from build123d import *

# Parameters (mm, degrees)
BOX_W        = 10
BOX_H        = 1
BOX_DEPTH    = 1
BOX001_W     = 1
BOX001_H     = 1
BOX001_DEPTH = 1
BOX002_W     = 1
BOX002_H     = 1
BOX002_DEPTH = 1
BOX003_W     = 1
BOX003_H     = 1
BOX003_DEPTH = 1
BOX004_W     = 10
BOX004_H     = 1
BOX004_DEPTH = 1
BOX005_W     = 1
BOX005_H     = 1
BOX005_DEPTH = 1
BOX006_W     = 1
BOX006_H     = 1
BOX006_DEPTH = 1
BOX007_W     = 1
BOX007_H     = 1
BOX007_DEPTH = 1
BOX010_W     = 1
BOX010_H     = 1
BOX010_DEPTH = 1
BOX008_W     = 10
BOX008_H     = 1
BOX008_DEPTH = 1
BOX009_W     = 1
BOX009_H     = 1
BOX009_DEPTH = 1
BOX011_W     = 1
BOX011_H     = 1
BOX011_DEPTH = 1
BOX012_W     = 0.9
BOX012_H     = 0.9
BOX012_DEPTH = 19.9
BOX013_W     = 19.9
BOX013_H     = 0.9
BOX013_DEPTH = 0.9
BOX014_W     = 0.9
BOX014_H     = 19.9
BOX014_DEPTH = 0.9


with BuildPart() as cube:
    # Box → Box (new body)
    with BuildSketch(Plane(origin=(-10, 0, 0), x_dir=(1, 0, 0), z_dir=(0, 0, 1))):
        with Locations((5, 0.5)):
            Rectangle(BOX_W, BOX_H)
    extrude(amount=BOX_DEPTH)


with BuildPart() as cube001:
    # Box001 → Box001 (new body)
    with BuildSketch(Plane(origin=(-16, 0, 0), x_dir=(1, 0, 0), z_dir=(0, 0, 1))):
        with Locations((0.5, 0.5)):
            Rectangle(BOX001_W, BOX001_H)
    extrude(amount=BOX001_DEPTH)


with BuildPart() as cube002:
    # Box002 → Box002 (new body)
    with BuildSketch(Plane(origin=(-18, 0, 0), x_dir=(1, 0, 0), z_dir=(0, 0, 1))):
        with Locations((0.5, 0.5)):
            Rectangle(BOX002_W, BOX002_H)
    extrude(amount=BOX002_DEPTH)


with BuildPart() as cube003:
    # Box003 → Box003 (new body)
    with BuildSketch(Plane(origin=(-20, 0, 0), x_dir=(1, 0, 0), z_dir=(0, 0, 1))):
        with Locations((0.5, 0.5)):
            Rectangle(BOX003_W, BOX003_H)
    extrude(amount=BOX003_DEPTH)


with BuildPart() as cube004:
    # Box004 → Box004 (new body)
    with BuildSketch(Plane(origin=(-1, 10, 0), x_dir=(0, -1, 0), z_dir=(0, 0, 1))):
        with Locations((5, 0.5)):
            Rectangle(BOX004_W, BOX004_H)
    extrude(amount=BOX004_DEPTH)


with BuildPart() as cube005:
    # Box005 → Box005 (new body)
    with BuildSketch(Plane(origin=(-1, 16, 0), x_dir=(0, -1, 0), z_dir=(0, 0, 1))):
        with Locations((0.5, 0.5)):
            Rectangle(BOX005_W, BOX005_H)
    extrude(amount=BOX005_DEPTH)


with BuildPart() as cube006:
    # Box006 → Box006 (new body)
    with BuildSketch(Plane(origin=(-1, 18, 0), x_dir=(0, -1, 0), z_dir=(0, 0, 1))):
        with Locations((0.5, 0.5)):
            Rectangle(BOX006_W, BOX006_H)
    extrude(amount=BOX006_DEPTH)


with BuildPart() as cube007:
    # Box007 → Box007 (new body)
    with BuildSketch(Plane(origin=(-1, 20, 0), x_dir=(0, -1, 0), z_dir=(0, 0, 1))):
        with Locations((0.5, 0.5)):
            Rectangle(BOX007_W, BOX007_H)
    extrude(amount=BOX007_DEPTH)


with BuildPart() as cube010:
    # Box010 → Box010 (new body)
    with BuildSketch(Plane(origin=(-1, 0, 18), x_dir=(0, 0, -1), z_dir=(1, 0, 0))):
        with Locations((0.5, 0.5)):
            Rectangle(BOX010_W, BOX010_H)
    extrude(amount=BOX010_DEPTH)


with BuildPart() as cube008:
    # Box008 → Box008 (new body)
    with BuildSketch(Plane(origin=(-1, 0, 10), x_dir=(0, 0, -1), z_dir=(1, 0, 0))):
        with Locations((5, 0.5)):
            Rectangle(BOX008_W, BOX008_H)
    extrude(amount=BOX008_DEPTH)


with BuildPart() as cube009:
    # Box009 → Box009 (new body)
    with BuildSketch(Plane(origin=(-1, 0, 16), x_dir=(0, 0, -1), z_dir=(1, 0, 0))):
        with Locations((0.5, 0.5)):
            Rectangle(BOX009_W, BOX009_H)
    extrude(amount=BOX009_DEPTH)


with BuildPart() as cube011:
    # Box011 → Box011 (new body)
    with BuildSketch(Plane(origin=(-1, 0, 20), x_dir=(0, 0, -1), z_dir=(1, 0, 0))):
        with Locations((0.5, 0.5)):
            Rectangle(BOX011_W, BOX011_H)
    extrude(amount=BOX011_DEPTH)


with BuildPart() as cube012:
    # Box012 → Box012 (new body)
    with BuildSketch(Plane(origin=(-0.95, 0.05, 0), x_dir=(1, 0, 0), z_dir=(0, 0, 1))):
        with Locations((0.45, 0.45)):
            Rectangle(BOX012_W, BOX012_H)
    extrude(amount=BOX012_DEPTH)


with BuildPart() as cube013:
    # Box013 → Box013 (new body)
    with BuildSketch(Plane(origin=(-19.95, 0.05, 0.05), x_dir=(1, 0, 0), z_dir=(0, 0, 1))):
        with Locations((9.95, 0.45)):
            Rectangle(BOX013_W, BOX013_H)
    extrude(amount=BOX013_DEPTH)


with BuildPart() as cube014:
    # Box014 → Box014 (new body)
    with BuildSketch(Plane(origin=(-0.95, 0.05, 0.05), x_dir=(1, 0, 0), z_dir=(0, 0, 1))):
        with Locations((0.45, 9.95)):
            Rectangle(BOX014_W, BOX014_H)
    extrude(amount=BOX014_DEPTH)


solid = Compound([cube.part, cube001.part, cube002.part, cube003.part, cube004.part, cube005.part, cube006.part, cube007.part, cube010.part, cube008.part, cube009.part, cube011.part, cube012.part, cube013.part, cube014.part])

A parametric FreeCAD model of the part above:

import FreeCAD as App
import Part
import Sketcher

doc = App.newDocument("Part")
body = doc.addObject("PartDesign::Body", "Body")

# Sketch on XY plane
sketch1 = doc.addObject("Sketcher::SketchObject", "Sketch")
body.addObject(sketch1)
sketch1.AttachmentSupport = (doc.XY_Plane, [""])
sketch1.MapMode = "FlatFace"
sketch1.addGeometry([
    Part.LineSegment(App.Vector(-10, 1, 0), App.Vector(-10, 0, 0)),
    Part.LineSegment(App.Vector(-10, 0, 0), App.Vector(0, 0, 0)),
    Part.LineSegment(App.Vector(0, 0, 0), App.Vector(0, 1, 0)),
    Part.LineSegment(App.Vector(0, 1, 0), App.Vector(-10, 1, 0)),
], False)
sketch1.addConstraint([
    Sketcher.Constraint("Coincident", 0, 2, 1, 1),
    Sketcher.Constraint("Coincident", 1, 2, 2, 1),
    Sketcher.Constraint("Coincident", 2, 2, 3, 1),
    Sketcher.Constraint("Coincident", 3, 2, 0, 1),
    Sketcher.Constraint("Vertical", 0),
    Sketcher.Constraint("Horizontal", 1),
    Sketcher.Constraint("Vertical", 2),
    Sketcher.Constraint("Horizontal", 3),
    Sketcher.Constraint("Coincident", 1, 2, -1, 1),
    Sketcher.Constraint("DistanceX", 1, 1, 1, 2, 10.0),
    Sketcher.Constraint("DistanceY", 0, 2, 0, 1, 1.0),
])
pad1 = doc.addObject("PartDesign::Pad", "Pad")
body.addObject(pad1)
pad1.Profile = sketch1
pad1.Length = 1
body2 = doc.addObject("PartDesign::Body", "Body001")

# Sketch on XY plane
sketch2 = doc.addObject("Sketcher::SketchObject", "Sketch001")
body2.addObject(sketch2)
sketch2.AttachmentSupport = (doc.getObject("XY_Plane001"), [""])
sketch2.MapMode = "FlatFace"
sketch2.addGeometry([
    Part.LineSegment(App.Vector(-16, 1, 0), App.Vector(-16, 0, 0)),
    Part.LineSegment(App.Vector(-16, 0, 0), App.Vector(-15, 0, 0)),
    Part.LineSegment(App.Vector(-15, 0, 0), App.Vector(-15, 1, 0)),
    Part.LineSegment(App.Vector(-15, 1, 0), App.Vector(-16, 1, 0)),
], False)
sketch2.addConstraint([
    Sketcher.Constraint("Coincident", 0, 2, 1, 1),
    Sketcher.Constraint("Coincident", 1, 2, 2, 1),
    Sketcher.Constraint("Coincident", 2, 2, 3, 1),
    Sketcher.Constraint("Coincident", 3, 2, 0, 1),
    Sketcher.Constraint("Vertical", 0),
    Sketcher.Constraint("Horizontal", 1),
    Sketcher.Constraint("Vertical", 2),
    Sketcher.Constraint("Horizontal", 3),
    Sketcher.Constraint("PointOnObject", 0, 2, -1),
    Sketcher.Constraint("Equal", 3, 0),
    Sketcher.Constraint("DistanceX", 1, 1, 1, 2, 1.0),
    Sketcher.Constraint("DistanceX", 0, 2, -1, 1, 16.0),
])
pad2 = doc.addObject("PartDesign::Pad", "Pad001")
body2.addObject(pad2)
pad2.Profile = sketch2
pad2.Length = 1
body3 = doc.addObject("PartDesign::Body", "Body002")

# Sketch on XY plane
sketch3 = doc.addObject("Sketcher::SketchObject", "Sketch002")
body3.addObject(sketch3)
sketch3.AttachmentSupport = (doc.getObject("XY_Plane002"), [""])
sketch3.MapMode = "FlatFace"
sketch3.addGeometry([
    Part.LineSegment(App.Vector(-18, 1, 0), App.Vector(-18, 0, 0)),
    Part.LineSegment(App.Vector(-18, 0, 0), App.Vector(-17, 0, 0)),
    Part.LineSegment(App.Vector(-17, 0, 0), App.Vector(-17, 1, 0)),
    Part.LineSegment(App.Vector(-17, 1, 0), App.Vector(-18, 1, 0)),
], False)
sketch3.addConstraint([
    Sketcher.Constraint("Coincident", 0, 2, 1, 1),
    Sketcher.Constraint("Coincident", 1, 2, 2, 1),
    Sketcher.Constraint("Coincident", 2, 2, 3, 1),
    Sketcher.Constraint("Coincident", 3, 2, 0, 1),
    Sketcher.Constraint("Vertical", 0),
    Sketcher.Constraint("Horizontal", 1),
    Sketcher.Constraint("Vertical", 2),
    Sketcher.Constraint("Horizontal", 3),
    Sketcher.Constraint("PointOnObject", 0, 2, -1),
    Sketcher.Constraint("Equal", 3, 0),
    Sketcher.Constraint("DistanceX", 1, 1, 1, 2, 1.0),
    Sketcher.Constraint("DistanceX", 0, 2, -1, 1, 18.0),
])
pad3 = doc.addObject("PartDesign::Pad", "Pad002")
body3.addObject(pad3)
pad3.Profile = sketch3
pad3.Length = 1
body4 = doc.addObject("PartDesign::Body", "Body003")

# Sketch on XY plane
sketch4 = doc.addObject("Sketcher::SketchObject", "Sketch003")
body4.addObject(sketch4)
sketch4.AttachmentSupport = (doc.getObject("XY_Plane003"), [""])
sketch4.MapMode = "FlatFace"
sketch4.addGeometry([
    Part.LineSegment(App.Vector(-20, 1, 0), App.Vector(-20, 0, 0)),
    Part.LineSegment(App.Vector(-20, 0, 0), App.Vector(-19, 0, 0)),
    Part.LineSegment(App.Vector(-19, 0, 0), App.Vector(-19, 1, 0)),
    Part.LineSegment(App.Vector(-19, 1, 0), App.Vector(-20, 1, 0)),
], False)
sketch4.addConstraint([
    Sketcher.Constraint("Coincident", 0, 2, 1, 1),
    Sketcher.Constraint("Coincident", 1, 2, 2, 1),
    Sketcher.Constraint("Coincident", 2, 2, 3, 1),
    Sketcher.Constraint("Coincident", 3, 2, 0, 1),
    Sketcher.Constraint("Vertical", 0),
    Sketcher.Constraint("Horizontal", 1),
    Sketcher.Constraint("Vertical", 2),
    Sketcher.Constraint("Horizontal", 3),
    Sketcher.Constraint("PointOnObject", 0, 2, -1),
    Sketcher.Constraint("Equal", 3, 0),
    Sketcher.Constraint("DistanceX", 1, 1, 1, 2, 1.0),
    Sketcher.Constraint("DistanceX", 0, 2, -1, 1, 20.0),
])
pad4 = doc.addObject("PartDesign::Pad", "Pad003")
body4.addObject(pad4)
pad4.Profile = sketch4
pad4.Length = 1
body5 = doc.addObject("PartDesign::Body", "Body004")

# Sketch on XY plane
sketch5 = doc.addObject("Sketcher::SketchObject", "Sketch004")
body5.addObject(sketch5)
sketch5.AttachmentSupport = (doc.getObject("XY_Plane004"), [""])
sketch5.MapMode = "FlatFace"
sketch5.addGeometry([
    Part.LineSegment(App.Vector(0, 10, 0), App.Vector(-1, 10, 0)),
    Part.LineSegment(App.Vector(-1, 10, 0), App.Vector(-1, 0, 0)),
    Part.LineSegment(App.Vector(-1, 0, 0), App.Vector(0, 0, 0)),
    Part.LineSegment(App.Vector(0, 0, 0), App.Vector(0, 10, 0)),
], False)
sketch5.addConstraint([
    Sketcher.Constraint("Coincident", 0, 2, 1, 1),
    Sketcher.Constraint("Coincident", 1, 2, 2, 1),
    Sketcher.Constraint("Coincident", 2, 2, 3, 1),
    Sketcher.Constraint("Coincident", 3, 2, 0, 1),
    Sketcher.Constraint("Horizontal", 0),
    Sketcher.Constraint("Vertical", 1),
    Sketcher.Constraint("Horizontal", 2),
    Sketcher.Constraint("Vertical", 3),
    Sketcher.Constraint("Coincident", 2, 2, -1, 1),
    Sketcher.Constraint("DistanceX", 0, 2, 0, 1, 1.0),
    Sketcher.Constraint("DistanceY", 1, 2, 1, 1, 10.0),
])
pad5 = doc.addObject("PartDesign::Pad", "Pad004")
body5.addObject(pad5)
pad5.Profile = sketch5
pad5.Length = 1
body6 = doc.addObject("PartDesign::Body", "Body005")

# Sketch on XY plane
sketch6 = doc.addObject("Sketcher::SketchObject", "Sketch005")
body6.addObject(sketch6)
sketch6.AttachmentSupport = (doc.getObject("XY_Plane005"), [""])
sketch6.MapMode = "FlatFace"
sketch6.addGeometry([
    Part.LineSegment(App.Vector(0, 16, 0), App.Vector(-1, 16, 0)),
    Part.LineSegment(App.Vector(-1, 16, 0), App.Vector(-1, 15, 0)),
    Part.LineSegment(App.Vector(-1, 15, 0), App.Vector(0, 15, 0)),
    Part.LineSegment(App.Vector(0, 15, 0), App.Vector(0, 16, 0)),
], False)
sketch6.addConstraint([
    Sketcher.Constraint("Coincident", 0, 2, 1, 1),
    Sketcher.Constraint("Coincident", 1, 2, 2, 1),
    Sketcher.Constraint("Coincident", 2, 2, 3, 1),
    Sketcher.Constraint("Coincident", 3, 2, 0, 1),
    Sketcher.Constraint("Horizontal", 0),
    Sketcher.Constraint("Vertical", 1),
    Sketcher.Constraint("Horizontal", 2),
    Sketcher.Constraint("Vertical", 3),
    Sketcher.Constraint("PointOnObject", 2, 2, -2),
    Sketcher.Constraint("Equal", 2, 1),
    Sketcher.Constraint("DistanceX", 0, 2, 0, 1, 1.0),
    Sketcher.Constraint("DistanceY", -1, 1, 0, 2, 16.0),
])
pad6 = doc.addObject("PartDesign::Pad", "Pad005")
body6.addObject(pad6)
pad6.Profile = sketch6
pad6.Length = 1
body7 = doc.addObject("PartDesign::Body", "Body006")

# Sketch on XY plane
sketch7 = doc.addObject("Sketcher::SketchObject", "Sketch006")
body7.addObject(sketch7)
sketch7.AttachmentSupport = (doc.getObject("XY_Plane006"), [""])
sketch7.MapMode = "FlatFace"
sketch7.addGeometry([
    Part.LineSegment(App.Vector(0, 18, 0), App.Vector(-1, 18, 0)),
    Part.LineSegment(App.Vector(-1, 18, 0), App.Vector(-1, 17, 0)),
    Part.LineSegment(App.Vector(-1, 17, 0), App.Vector(0, 17, 0)),
    Part.LineSegment(App.Vector(0, 17, 0), App.Vector(0, 18, 0)),
], False)
sketch7.addConstraint([
    Sketcher.Constraint("Coincident", 0, 2, 1, 1),
    Sketcher.Constraint("Coincident", 1, 2, 2, 1),
    Sketcher.Constraint("Coincident", 2, 2, 3, 1),
    Sketcher.Constraint("Coincident", 3, 2, 0, 1),
    Sketcher.Constraint("Horizontal", 0),
    Sketcher.Constraint("Vertical", 1),
    Sketcher.Constraint("Horizontal", 2),
    Sketcher.Constraint("Vertical", 3),
    Sketcher.Constraint("PointOnObject", 2, 2, -2),
    Sketcher.Constraint("Equal", 2, 1),
    Sketcher.Constraint("DistanceX", 0, 2, 0, 1, 1.0),
    Sketcher.Constraint("DistanceY", -1, 1, 0, 2, 18.0),
])
pad7 = doc.addObject("PartDesign::Pad", "Pad006")
body7.addObject(pad7)
pad7.Profile = sketch7
pad7.Length = 1
body8 = doc.addObject("PartDesign::Body", "Body007")

# Sketch on XY plane
sketch8 = doc.addObject("Sketcher::SketchObject", "Sketch007")
body8.addObject(sketch8)
sketch8.AttachmentSupport = (doc.getObject("XY_Plane007"), [""])
sketch8.MapMode = "FlatFace"
sketch8.addGeometry([
    Part.LineSegment(App.Vector(0, 20, 0), App.Vector(-1, 20, 0)),
    Part.LineSegment(App.Vector(-1, 20, 0), App.Vector(-1, 19, 0)),
    Part.LineSegment(App.Vector(-1, 19, 0), App.Vector(0, 19, 0)),
    Part.LineSegment(App.Vector(0, 19, 0), App.Vector(0, 20, 0)),
], False)
sketch8.addConstraint([
    Sketcher.Constraint("Coincident", 0, 2, 1, 1),
    Sketcher.Constraint("Coincident", 1, 2, 2, 1),
    Sketcher.Constraint("Coincident", 2, 2, 3, 1),
    Sketcher.Constraint("Coincident", 3, 2, 0, 1),
    Sketcher.Constraint("Horizontal", 0),
    Sketcher.Constraint("Vertical", 1),
    Sketcher.Constraint("Horizontal", 2),
    Sketcher.Constraint("Vertical", 3),
    Sketcher.Constraint("PointOnObject", 2, 2, -2),
    Sketcher.Constraint("Equal", 2, 1),
    Sketcher.Constraint("DistanceX", 0, 2, 0, 1, 1.0),
    Sketcher.Constraint("DistanceY", -1, 1, 0, 2, 20.0),
])
pad8 = doc.addObject("PartDesign::Pad", "Pad007")
body8.addObject(pad8)
pad8.Profile = sketch8
pad8.Length = 1
body9 = doc.addObject("PartDesign::Body", "Body008")

# Sketch on YZ plane
sketch9 = doc.addObject("Sketcher::SketchObject", "Sketch008")
body9.addObject(sketch9)
sketch9.AttachmentSupport = (doc.getObject("YZ_Plane008"), [""])
sketch9.MapMode = "FlatFace"
sketch9.AttachmentOffset = App.Placement(App.Vector(0, 0, -1), App.Rotation())
sketch9.addGeometry([
    Part.LineSegment(App.Vector(1, 18, 0), App.Vector(0, 18, 0)),
    Part.LineSegment(App.Vector(0, 18, 0), App.Vector(0, 17, 0)),
    Part.LineSegment(App.Vector(0, 17, 0), App.Vector(1, 17, 0)),
    Part.LineSegment(App.Vector(1, 17, 0), App.Vector(1, 18, 0)),
], False)
sketch9.addConstraint([
    Sketcher.Constraint("Coincident", 0, 2, 1, 1),
    Sketcher.Constraint("Coincident", 1, 2, 2, 1),
    Sketcher.Constraint("Coincident", 2, 2, 3, 1),
    Sketcher.Constraint("Coincident", 3, 2, 0, 1),
    Sketcher.Constraint("Horizontal", 0),
    Sketcher.Constraint("Vertical", 1),
    Sketcher.Constraint("Horizontal", 2),
    Sketcher.Constraint("Vertical", 3),
    Sketcher.Constraint("PointOnObject", 0, 2, -2),
    Sketcher.Constraint("Equal", 2, 1),
    Sketcher.Constraint("DistanceX", 0, 2, 0, 1, 1.0),
    Sketcher.Constraint("DistanceY", -1, 1, 0, 2, 18.0),
])
pad9 = doc.addObject("PartDesign::Pad", "Pad008")
body9.addObject(pad9)
pad9.Profile = sketch9
pad9.Length = 1
body10 = doc.addObject("PartDesign::Body", "Body009")

# Sketch on YZ plane
sketch10 = doc.addObject("Sketcher::SketchObject", "Sketch009")
body10.addObject(sketch10)
sketch10.AttachmentSupport = (doc.getObject("YZ_Plane009"), [""])
sketch10.MapMode = "FlatFace"
sketch10.AttachmentOffset = App.Placement(App.Vector(0, 0, -1), App.Rotation())
sketch10.addGeometry([
    Part.LineSegment(App.Vector(1, 10, 0), App.Vector(0, 10, 0)),
    Part.LineSegment(App.Vector(0, 10, 0), App.Vector(0, 0, 0)),
    Part.LineSegment(App.Vector(0, 0, 0), App.Vector(1, 0, 0)),
    Part.LineSegment(App.Vector(1, 0, 0), App.Vector(1, 10, 0)),
], False)
sketch10.addConstraint([
    Sketcher.Constraint("Coincident", 0, 2, 1, 1),
    Sketcher.Constraint("Coincident", 1, 2, 2, 1),
    Sketcher.Constraint("Coincident", 2, 2, 3, 1),
    Sketcher.Constraint("Coincident", 3, 2, 0, 1),
    Sketcher.Constraint("Horizontal", 0),
    Sketcher.Constraint("Vertical", 1),
    Sketcher.Constraint("Horizontal", 2),
    Sketcher.Constraint("Vertical", 3),
    Sketcher.Constraint("Coincident", 1, 2, -1, 1),
    Sketcher.Constraint("DistanceX", 0, 2, 0, 1, 1.0),
    Sketcher.Constraint("DistanceY", 1, 2, 1, 1, 10.0),
])
pad10 = doc.addObject("PartDesign::Pad", "Pad009")
body10.addObject(pad10)
pad10.Profile = sketch10
pad10.Length = 1
body11 = doc.addObject("PartDesign::Body", "Body010")

# Sketch on YZ plane
sketch11 = doc.addObject("Sketcher::SketchObject", "Sketch010")
body11.addObject(sketch11)
sketch11.AttachmentSupport = (doc.getObject("YZ_Plane010"), [""])
sketch11.MapMode = "FlatFace"
sketch11.AttachmentOffset = App.Placement(App.Vector(0, 0, -1), App.Rotation())
sketch11.addGeometry([
    Part.LineSegment(App.Vector(1, 16, 0), App.Vector(0, 16, 0)),
    Part.LineSegment(App.Vector(0, 16, 0), App.Vector(0, 15, 0)),
    Part.LineSegment(App.Vector(0, 15, 0), App.Vector(1, 15, 0)),
    Part.LineSegment(App.Vector(1, 15, 0), App.Vector(1, 16, 0)),
], False)
sketch11.addConstraint([
    Sketcher.Constraint("Coincident", 0, 2, 1, 1),
    Sketcher.Constraint("Coincident", 1, 2, 2, 1),
    Sketcher.Constraint("Coincident", 2, 2, 3, 1),
    Sketcher.Constraint("Coincident", 3, 2, 0, 1),
    Sketcher.Constraint("Horizontal", 0),
    Sketcher.Constraint("Vertical", 1),
    Sketcher.Constraint("Horizontal", 2),
    Sketcher.Constraint("Vertical", 3),
    Sketcher.Constraint("PointOnObject", 0, 2, -2),
    Sketcher.Constraint("Equal", 2, 1),
    Sketcher.Constraint("DistanceX", 0, 2, 0, 1, 1.0),
    Sketcher.Constraint("DistanceY", -1, 1, 0, 2, 16.0),
])
pad11 = doc.addObject("PartDesign::Pad", "Pad010")
body11.addObject(pad11)
pad11.Profile = sketch11
pad11.Length = 1
body12 = doc.addObject("PartDesign::Body", "Body011")

# Sketch on YZ plane
sketch12 = doc.addObject("Sketcher::SketchObject", "Sketch011")
body12.addObject(sketch12)
sketch12.AttachmentSupport = (doc.getObject("YZ_Plane011"), [""])
sketch12.MapMode = "FlatFace"
sketch12.AttachmentOffset = App.Placement(App.Vector(0, 0, -1), App.Rotation())
sketch12.addGeometry([
    Part.LineSegment(App.Vector(1, 20, 0), App.Vector(0, 20, 0)),
    Part.LineSegment(App.Vector(0, 20, 0), App.Vector(0, 19, 0)),
    Part.LineSegment(App.Vector(0, 19, 0), App.Vector(1, 19, 0)),
    Part.LineSegment(App.Vector(1, 19, 0), App.Vector(1, 20, 0)),
], False)
sketch12.addConstraint([
    Sketcher.Constraint("Coincident", 0, 2, 1, 1),
    Sketcher.Constraint("Coincident", 1, 2, 2, 1),
    Sketcher.Constraint("Coincident", 2, 2, 3, 1),
    Sketcher.Constraint("Coincident", 3, 2, 0, 1),
    Sketcher.Constraint("Horizontal", 0),
    Sketcher.Constraint("Vertical", 1),
    Sketcher.Constraint("Horizontal", 2),
    Sketcher.Constraint("Vertical", 3),
    Sketcher.Constraint("PointOnObject", 0, 2, -2),
    Sketcher.Constraint("Equal", 2, 1),
    Sketcher.Constraint("DistanceX", 0, 2, 0, 1, 1.0),
    Sketcher.Constraint("DistanceY", -1, 1, 0, 2, 20.0),
])
pad12 = doc.addObject("PartDesign::Pad", "Pad011")
body12.addObject(pad12)
pad12.Profile = sketch12
pad12.Length = 1
body13 = doc.addObject("PartDesign::Body", "Body012")

# Sketch on XY plane
sketch13 = doc.addObject("Sketcher::SketchObject", "Sketch012")
body13.addObject(sketch13)
sketch13.AttachmentSupport = (doc.getObject("XY_Plane012"), [""])
sketch13.MapMode = "FlatFace"
sketch13.addGeometry([
    Part.LineSegment(App.Vector(-0.9, 0.9, 0), App.Vector(-0.9, 0.1, 0)),
    Part.LineSegment(App.Vector(-0.9, 0.1, 0), App.Vector(-0.1, 0.1, 0)),
    Part.LineSegment(App.Vector(-0.1, 0.1, 0), App.Vector(-0.1, 0.9, 0)),
    Part.LineSegment(App.Vector(-0.1, 0.9, 0), App.Vector(-0.9, 0.9, 0)),
], False)
sketch13.addConstraint([
    Sketcher.Constraint("Coincident", 0, 2, 1, 1),
    Sketcher.Constraint("Coincident", 1, 2, 2, 1),
    Sketcher.Constraint("Coincident", 2, 2, 3, 1),
    Sketcher.Constraint("Coincident", 3, 2, 0, 1),
    Sketcher.Constraint("Vertical", 0),
    Sketcher.Constraint("Horizontal", 1),
    Sketcher.Constraint("Vertical", 2),
    Sketcher.Constraint("Horizontal", 3),
    Sketcher.Constraint("Equal", 3, 0),
    Sketcher.Constraint("DistanceX", 1, 1, 1, 2, 0.9),
    Sketcher.Constraint("DistanceX", 0, 2, -1, 1, 0.95),
    Sketcher.Constraint("DistanceY", -1, 1, 0, 2, 0.05),
])
pad13 = doc.addObject("PartDesign::Pad", "Pad012")
body13.addObject(pad13)
pad13.Profile = sketch13
pad13.Length = 19.9
body14 = doc.addObject("PartDesign::Body", "Body013")

# Sketch on XY plane
sketch14 = doc.addObject("Sketcher::SketchObject", "Sketch013")
body14.addObject(sketch14)
sketch14.AttachmentSupport = (doc.getObject("XY_Plane013"), [""])
sketch14.MapMode = "FlatFace"
sketch14.AttachmentOffset = App.Placement(App.Vector(0, 0, 0.05), App.Rotation())
sketch14.addGeometry([
    Part.LineSegment(App.Vector(-19.9, 0.9, 0), App.Vector(-19.9, 0.1, 0)),
    Part.LineSegment(App.Vector(-19.9, 0.1, 0), App.Vector(-0.1, 0.1, 0)),
    Part.LineSegment(App.Vector(-0.1, 0.1, 0), App.Vector(-0.1, 0.9, 0)),
    Part.LineSegment(App.Vector(-0.1, 0.9, 0), App.Vector(-19.9, 0.9, 0)),
], False)
sketch14.addConstraint([
    Sketcher.Constraint("Coincident", 0, 2, 1, 1),
    Sketcher.Constraint("Coincident", 1, 2, 2, 1),
    Sketcher.Constraint("Coincident", 2, 2, 3, 1),
    Sketcher.Constraint("Coincident", 3, 2, 0, 1),
    Sketcher.Constraint("Vertical", 0),
    Sketcher.Constraint("Horizontal", 1),
    Sketcher.Constraint("Vertical", 2),
    Sketcher.Constraint("Horizontal", 3),
    Sketcher.Constraint("DistanceX", 1, 1, 1, 2, 19.9),
    Sketcher.Constraint("DistanceY", 0, 2, 0, 1, 0.9),
    Sketcher.Constraint("DistanceX", 0, 2, -1, 1, 19.95),
    Sketcher.Constraint("DistanceY", -1, 1, 0, 2, 0.05),
])
pad14 = doc.addObject("PartDesign::Pad", "Pad013")
body14.addObject(pad14)
pad14.Profile = sketch14
pad14.Length = 0.9
body15 = doc.addObject("PartDesign::Body", "Body014")

# Sketch on XY plane
sketch15 = doc.addObject("Sketcher::SketchObject", "Sketch014")
body15.addObject(sketch15)
sketch15.AttachmentSupport = (doc.getObject("XY_Plane014"), [""])
sketch15.MapMode = "FlatFace"
sketch15.AttachmentOffset = App.Placement(App.Vector(0, 0, 0.05), App.Rotation())
sketch15.addGeometry([
    Part.LineSegment(App.Vector(-0.9, 19.9, 0), App.Vector(-0.9, 0.1, 0)),
    Part.LineSegment(App.Vector(-0.9, 0.1, 0), App.Vector(-0.1, 0.1, 0)),
    Part.LineSegment(App.Vector(-0.1, 0.1, 0), App.Vector(-0.1, 19.9, 0)),
    Part.LineSegment(App.Vector(-0.1, 19.9, 0), App.Vector(-0.9, 19.9, 0)),
], False)
sketch15.addConstraint([
    Sketcher.Constraint("Coincident", 0, 2, 1, 1),
    Sketcher.Constraint("Coincident", 1, 2, 2, 1),
    Sketcher.Constraint("Coincident", 2, 2, 3, 1),
    Sketcher.Constraint("Coincident", 3, 2, 0, 1),
    Sketcher.Constraint("Vertical", 0),
    Sketcher.Constraint("Horizontal", 1),
    Sketcher.Constraint("Vertical", 2),
    Sketcher.Constraint("Horizontal", 3),
    Sketcher.Constraint("DistanceX", 1, 1, 1, 2, 0.9),
    Sketcher.Constraint("DistanceY", 0, 2, 0, 1, 19.9),
    Sketcher.Constraint("DistanceX", 0, 2, -1, 1, 0.95),
    Sketcher.Constraint("DistanceY", -1, 1, 0, 2, 0.05),
])
pad15 = doc.addObject("PartDesign::Pad", "Pad014")
body15.addObject(pad15)
pad15.Profile = sketch15
pad15.Length = 0.9

doc.recompute()
